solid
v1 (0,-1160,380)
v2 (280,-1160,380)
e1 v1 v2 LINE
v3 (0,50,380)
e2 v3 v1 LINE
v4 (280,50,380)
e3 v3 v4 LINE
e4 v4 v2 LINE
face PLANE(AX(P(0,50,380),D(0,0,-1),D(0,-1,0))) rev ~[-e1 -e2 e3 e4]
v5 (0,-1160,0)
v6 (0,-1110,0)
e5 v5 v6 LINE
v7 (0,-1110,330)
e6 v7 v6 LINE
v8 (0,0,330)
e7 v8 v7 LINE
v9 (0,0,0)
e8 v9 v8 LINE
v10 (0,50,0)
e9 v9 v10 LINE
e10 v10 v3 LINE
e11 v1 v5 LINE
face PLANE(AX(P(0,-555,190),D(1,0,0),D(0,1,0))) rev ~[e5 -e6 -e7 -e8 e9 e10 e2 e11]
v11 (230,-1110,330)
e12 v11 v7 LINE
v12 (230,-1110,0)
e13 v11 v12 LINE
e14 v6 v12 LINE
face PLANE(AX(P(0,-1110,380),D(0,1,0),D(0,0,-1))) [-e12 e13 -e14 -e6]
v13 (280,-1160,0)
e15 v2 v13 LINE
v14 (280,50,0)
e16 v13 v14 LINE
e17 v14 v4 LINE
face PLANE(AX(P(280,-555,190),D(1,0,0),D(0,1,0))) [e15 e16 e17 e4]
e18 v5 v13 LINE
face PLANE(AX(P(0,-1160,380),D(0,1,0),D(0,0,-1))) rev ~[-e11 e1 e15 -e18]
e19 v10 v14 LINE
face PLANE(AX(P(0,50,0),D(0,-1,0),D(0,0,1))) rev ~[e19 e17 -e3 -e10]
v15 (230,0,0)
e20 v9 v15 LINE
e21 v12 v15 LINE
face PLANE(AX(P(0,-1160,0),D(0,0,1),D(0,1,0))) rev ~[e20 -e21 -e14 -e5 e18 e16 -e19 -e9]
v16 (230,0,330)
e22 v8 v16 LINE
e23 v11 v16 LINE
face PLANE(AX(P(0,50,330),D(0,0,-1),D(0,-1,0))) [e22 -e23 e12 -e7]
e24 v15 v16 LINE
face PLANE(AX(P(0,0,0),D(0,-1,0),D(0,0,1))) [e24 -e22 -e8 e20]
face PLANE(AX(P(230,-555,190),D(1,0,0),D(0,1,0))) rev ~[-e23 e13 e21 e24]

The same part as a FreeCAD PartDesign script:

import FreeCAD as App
import Part
import Sketcher

V = App.Vector
Q = App.Units.Quantity


def faces_at(feature, points):
    """Names of the faces that lie closest to the given points."""
    faces = feature.Shape.Faces
    near = lambda p: min(range(len(faces)), key=lambda i: faces[i].distToShape(Part.Vertex(*p))[0])
    return sorted({f"Face{near(p) + 1}" for p in points})

doc = App.newDocument("Part")
body = doc.addObject("PartDesign::Body", "Body")

# Sketch on YZ plane
sketch1 = body.newObject("Sketcher::SketchObject", "Sketch")
sketch1.AttachmentSupport = (doc.getObject("YZ_Plane"), [""])
sketch1.MapMode = "FlatFace"
sketch1.addGeometry(Part.LineSegment(V(50, 0, 0), V(50, 380, 0)), False)
sketch1.addGeometry(Part.LineSegment(V(50, 380, 0), V(-1160, 380, 0)), False)
sketch1.addGeometry(Part.LineSegment(V(-1160, 380, 0), V(-1160, 0, 0)), False)
sketch1.addGeometry(Part.LineSegment(V(-1160, 0, 0), V(50, 0, 0)), False)
sketch1.addConstraint(Sketcher.Constraint("Coincident", 0, 2, 1, 1))
sketch1.addConstraint(Sketcher.Constraint("Coincident", 1, 2, 2, 1))
sketch1.addConstraint(Sketcher.Constraint("Coincident", 2, 2, 3, 1))
sketch1.addConstraint(Sketcher.Constraint("Coincident", 3, 2, 0, 1))
sketch1.addConstraint(Sketcher.Constraint("Vertical", 0))
sketch1.addConstraint(Sketcher.Constraint("Horizontal", 1))
sketch1.addConstraint(Sketcher.Constraint("Vertical", 2))
sketch1.addConstraint(Sketcher.Constraint("Horizontal", 3))
sketch1.addConstraint(Sketcher.Constraint("PointOnObject", 2, 2, -1))
sketch1.addConstraint(Sketcher.Constraint("DistanceX", 1, 2, 1, 1, Q("1210 mm")))
sketch1.addConstraint(Sketcher.Constraint("DistanceY", 0, 1, 0, 2, Q("380 mm")))
sketch1.addConstraint(Sketcher.Constraint("DistanceX", -1, 1, 0, 2, Q("50 mm")))
pad1 = body.newObject("PartDesign::Pad", "Pad")
pad1.Profile = sketch1
pad1.Length = 280
doc.recompute()

thickness = body.newObject("PartDesign::Thickness", "Thickness")
thickness.Base = (pad1, faces_at(pad1, [(0, -555, 190), (140, -555, 0)]))
thickness.Value = 50
thickness.Reversed = True
thickness.Join = "Arc"

doc.recompute()
